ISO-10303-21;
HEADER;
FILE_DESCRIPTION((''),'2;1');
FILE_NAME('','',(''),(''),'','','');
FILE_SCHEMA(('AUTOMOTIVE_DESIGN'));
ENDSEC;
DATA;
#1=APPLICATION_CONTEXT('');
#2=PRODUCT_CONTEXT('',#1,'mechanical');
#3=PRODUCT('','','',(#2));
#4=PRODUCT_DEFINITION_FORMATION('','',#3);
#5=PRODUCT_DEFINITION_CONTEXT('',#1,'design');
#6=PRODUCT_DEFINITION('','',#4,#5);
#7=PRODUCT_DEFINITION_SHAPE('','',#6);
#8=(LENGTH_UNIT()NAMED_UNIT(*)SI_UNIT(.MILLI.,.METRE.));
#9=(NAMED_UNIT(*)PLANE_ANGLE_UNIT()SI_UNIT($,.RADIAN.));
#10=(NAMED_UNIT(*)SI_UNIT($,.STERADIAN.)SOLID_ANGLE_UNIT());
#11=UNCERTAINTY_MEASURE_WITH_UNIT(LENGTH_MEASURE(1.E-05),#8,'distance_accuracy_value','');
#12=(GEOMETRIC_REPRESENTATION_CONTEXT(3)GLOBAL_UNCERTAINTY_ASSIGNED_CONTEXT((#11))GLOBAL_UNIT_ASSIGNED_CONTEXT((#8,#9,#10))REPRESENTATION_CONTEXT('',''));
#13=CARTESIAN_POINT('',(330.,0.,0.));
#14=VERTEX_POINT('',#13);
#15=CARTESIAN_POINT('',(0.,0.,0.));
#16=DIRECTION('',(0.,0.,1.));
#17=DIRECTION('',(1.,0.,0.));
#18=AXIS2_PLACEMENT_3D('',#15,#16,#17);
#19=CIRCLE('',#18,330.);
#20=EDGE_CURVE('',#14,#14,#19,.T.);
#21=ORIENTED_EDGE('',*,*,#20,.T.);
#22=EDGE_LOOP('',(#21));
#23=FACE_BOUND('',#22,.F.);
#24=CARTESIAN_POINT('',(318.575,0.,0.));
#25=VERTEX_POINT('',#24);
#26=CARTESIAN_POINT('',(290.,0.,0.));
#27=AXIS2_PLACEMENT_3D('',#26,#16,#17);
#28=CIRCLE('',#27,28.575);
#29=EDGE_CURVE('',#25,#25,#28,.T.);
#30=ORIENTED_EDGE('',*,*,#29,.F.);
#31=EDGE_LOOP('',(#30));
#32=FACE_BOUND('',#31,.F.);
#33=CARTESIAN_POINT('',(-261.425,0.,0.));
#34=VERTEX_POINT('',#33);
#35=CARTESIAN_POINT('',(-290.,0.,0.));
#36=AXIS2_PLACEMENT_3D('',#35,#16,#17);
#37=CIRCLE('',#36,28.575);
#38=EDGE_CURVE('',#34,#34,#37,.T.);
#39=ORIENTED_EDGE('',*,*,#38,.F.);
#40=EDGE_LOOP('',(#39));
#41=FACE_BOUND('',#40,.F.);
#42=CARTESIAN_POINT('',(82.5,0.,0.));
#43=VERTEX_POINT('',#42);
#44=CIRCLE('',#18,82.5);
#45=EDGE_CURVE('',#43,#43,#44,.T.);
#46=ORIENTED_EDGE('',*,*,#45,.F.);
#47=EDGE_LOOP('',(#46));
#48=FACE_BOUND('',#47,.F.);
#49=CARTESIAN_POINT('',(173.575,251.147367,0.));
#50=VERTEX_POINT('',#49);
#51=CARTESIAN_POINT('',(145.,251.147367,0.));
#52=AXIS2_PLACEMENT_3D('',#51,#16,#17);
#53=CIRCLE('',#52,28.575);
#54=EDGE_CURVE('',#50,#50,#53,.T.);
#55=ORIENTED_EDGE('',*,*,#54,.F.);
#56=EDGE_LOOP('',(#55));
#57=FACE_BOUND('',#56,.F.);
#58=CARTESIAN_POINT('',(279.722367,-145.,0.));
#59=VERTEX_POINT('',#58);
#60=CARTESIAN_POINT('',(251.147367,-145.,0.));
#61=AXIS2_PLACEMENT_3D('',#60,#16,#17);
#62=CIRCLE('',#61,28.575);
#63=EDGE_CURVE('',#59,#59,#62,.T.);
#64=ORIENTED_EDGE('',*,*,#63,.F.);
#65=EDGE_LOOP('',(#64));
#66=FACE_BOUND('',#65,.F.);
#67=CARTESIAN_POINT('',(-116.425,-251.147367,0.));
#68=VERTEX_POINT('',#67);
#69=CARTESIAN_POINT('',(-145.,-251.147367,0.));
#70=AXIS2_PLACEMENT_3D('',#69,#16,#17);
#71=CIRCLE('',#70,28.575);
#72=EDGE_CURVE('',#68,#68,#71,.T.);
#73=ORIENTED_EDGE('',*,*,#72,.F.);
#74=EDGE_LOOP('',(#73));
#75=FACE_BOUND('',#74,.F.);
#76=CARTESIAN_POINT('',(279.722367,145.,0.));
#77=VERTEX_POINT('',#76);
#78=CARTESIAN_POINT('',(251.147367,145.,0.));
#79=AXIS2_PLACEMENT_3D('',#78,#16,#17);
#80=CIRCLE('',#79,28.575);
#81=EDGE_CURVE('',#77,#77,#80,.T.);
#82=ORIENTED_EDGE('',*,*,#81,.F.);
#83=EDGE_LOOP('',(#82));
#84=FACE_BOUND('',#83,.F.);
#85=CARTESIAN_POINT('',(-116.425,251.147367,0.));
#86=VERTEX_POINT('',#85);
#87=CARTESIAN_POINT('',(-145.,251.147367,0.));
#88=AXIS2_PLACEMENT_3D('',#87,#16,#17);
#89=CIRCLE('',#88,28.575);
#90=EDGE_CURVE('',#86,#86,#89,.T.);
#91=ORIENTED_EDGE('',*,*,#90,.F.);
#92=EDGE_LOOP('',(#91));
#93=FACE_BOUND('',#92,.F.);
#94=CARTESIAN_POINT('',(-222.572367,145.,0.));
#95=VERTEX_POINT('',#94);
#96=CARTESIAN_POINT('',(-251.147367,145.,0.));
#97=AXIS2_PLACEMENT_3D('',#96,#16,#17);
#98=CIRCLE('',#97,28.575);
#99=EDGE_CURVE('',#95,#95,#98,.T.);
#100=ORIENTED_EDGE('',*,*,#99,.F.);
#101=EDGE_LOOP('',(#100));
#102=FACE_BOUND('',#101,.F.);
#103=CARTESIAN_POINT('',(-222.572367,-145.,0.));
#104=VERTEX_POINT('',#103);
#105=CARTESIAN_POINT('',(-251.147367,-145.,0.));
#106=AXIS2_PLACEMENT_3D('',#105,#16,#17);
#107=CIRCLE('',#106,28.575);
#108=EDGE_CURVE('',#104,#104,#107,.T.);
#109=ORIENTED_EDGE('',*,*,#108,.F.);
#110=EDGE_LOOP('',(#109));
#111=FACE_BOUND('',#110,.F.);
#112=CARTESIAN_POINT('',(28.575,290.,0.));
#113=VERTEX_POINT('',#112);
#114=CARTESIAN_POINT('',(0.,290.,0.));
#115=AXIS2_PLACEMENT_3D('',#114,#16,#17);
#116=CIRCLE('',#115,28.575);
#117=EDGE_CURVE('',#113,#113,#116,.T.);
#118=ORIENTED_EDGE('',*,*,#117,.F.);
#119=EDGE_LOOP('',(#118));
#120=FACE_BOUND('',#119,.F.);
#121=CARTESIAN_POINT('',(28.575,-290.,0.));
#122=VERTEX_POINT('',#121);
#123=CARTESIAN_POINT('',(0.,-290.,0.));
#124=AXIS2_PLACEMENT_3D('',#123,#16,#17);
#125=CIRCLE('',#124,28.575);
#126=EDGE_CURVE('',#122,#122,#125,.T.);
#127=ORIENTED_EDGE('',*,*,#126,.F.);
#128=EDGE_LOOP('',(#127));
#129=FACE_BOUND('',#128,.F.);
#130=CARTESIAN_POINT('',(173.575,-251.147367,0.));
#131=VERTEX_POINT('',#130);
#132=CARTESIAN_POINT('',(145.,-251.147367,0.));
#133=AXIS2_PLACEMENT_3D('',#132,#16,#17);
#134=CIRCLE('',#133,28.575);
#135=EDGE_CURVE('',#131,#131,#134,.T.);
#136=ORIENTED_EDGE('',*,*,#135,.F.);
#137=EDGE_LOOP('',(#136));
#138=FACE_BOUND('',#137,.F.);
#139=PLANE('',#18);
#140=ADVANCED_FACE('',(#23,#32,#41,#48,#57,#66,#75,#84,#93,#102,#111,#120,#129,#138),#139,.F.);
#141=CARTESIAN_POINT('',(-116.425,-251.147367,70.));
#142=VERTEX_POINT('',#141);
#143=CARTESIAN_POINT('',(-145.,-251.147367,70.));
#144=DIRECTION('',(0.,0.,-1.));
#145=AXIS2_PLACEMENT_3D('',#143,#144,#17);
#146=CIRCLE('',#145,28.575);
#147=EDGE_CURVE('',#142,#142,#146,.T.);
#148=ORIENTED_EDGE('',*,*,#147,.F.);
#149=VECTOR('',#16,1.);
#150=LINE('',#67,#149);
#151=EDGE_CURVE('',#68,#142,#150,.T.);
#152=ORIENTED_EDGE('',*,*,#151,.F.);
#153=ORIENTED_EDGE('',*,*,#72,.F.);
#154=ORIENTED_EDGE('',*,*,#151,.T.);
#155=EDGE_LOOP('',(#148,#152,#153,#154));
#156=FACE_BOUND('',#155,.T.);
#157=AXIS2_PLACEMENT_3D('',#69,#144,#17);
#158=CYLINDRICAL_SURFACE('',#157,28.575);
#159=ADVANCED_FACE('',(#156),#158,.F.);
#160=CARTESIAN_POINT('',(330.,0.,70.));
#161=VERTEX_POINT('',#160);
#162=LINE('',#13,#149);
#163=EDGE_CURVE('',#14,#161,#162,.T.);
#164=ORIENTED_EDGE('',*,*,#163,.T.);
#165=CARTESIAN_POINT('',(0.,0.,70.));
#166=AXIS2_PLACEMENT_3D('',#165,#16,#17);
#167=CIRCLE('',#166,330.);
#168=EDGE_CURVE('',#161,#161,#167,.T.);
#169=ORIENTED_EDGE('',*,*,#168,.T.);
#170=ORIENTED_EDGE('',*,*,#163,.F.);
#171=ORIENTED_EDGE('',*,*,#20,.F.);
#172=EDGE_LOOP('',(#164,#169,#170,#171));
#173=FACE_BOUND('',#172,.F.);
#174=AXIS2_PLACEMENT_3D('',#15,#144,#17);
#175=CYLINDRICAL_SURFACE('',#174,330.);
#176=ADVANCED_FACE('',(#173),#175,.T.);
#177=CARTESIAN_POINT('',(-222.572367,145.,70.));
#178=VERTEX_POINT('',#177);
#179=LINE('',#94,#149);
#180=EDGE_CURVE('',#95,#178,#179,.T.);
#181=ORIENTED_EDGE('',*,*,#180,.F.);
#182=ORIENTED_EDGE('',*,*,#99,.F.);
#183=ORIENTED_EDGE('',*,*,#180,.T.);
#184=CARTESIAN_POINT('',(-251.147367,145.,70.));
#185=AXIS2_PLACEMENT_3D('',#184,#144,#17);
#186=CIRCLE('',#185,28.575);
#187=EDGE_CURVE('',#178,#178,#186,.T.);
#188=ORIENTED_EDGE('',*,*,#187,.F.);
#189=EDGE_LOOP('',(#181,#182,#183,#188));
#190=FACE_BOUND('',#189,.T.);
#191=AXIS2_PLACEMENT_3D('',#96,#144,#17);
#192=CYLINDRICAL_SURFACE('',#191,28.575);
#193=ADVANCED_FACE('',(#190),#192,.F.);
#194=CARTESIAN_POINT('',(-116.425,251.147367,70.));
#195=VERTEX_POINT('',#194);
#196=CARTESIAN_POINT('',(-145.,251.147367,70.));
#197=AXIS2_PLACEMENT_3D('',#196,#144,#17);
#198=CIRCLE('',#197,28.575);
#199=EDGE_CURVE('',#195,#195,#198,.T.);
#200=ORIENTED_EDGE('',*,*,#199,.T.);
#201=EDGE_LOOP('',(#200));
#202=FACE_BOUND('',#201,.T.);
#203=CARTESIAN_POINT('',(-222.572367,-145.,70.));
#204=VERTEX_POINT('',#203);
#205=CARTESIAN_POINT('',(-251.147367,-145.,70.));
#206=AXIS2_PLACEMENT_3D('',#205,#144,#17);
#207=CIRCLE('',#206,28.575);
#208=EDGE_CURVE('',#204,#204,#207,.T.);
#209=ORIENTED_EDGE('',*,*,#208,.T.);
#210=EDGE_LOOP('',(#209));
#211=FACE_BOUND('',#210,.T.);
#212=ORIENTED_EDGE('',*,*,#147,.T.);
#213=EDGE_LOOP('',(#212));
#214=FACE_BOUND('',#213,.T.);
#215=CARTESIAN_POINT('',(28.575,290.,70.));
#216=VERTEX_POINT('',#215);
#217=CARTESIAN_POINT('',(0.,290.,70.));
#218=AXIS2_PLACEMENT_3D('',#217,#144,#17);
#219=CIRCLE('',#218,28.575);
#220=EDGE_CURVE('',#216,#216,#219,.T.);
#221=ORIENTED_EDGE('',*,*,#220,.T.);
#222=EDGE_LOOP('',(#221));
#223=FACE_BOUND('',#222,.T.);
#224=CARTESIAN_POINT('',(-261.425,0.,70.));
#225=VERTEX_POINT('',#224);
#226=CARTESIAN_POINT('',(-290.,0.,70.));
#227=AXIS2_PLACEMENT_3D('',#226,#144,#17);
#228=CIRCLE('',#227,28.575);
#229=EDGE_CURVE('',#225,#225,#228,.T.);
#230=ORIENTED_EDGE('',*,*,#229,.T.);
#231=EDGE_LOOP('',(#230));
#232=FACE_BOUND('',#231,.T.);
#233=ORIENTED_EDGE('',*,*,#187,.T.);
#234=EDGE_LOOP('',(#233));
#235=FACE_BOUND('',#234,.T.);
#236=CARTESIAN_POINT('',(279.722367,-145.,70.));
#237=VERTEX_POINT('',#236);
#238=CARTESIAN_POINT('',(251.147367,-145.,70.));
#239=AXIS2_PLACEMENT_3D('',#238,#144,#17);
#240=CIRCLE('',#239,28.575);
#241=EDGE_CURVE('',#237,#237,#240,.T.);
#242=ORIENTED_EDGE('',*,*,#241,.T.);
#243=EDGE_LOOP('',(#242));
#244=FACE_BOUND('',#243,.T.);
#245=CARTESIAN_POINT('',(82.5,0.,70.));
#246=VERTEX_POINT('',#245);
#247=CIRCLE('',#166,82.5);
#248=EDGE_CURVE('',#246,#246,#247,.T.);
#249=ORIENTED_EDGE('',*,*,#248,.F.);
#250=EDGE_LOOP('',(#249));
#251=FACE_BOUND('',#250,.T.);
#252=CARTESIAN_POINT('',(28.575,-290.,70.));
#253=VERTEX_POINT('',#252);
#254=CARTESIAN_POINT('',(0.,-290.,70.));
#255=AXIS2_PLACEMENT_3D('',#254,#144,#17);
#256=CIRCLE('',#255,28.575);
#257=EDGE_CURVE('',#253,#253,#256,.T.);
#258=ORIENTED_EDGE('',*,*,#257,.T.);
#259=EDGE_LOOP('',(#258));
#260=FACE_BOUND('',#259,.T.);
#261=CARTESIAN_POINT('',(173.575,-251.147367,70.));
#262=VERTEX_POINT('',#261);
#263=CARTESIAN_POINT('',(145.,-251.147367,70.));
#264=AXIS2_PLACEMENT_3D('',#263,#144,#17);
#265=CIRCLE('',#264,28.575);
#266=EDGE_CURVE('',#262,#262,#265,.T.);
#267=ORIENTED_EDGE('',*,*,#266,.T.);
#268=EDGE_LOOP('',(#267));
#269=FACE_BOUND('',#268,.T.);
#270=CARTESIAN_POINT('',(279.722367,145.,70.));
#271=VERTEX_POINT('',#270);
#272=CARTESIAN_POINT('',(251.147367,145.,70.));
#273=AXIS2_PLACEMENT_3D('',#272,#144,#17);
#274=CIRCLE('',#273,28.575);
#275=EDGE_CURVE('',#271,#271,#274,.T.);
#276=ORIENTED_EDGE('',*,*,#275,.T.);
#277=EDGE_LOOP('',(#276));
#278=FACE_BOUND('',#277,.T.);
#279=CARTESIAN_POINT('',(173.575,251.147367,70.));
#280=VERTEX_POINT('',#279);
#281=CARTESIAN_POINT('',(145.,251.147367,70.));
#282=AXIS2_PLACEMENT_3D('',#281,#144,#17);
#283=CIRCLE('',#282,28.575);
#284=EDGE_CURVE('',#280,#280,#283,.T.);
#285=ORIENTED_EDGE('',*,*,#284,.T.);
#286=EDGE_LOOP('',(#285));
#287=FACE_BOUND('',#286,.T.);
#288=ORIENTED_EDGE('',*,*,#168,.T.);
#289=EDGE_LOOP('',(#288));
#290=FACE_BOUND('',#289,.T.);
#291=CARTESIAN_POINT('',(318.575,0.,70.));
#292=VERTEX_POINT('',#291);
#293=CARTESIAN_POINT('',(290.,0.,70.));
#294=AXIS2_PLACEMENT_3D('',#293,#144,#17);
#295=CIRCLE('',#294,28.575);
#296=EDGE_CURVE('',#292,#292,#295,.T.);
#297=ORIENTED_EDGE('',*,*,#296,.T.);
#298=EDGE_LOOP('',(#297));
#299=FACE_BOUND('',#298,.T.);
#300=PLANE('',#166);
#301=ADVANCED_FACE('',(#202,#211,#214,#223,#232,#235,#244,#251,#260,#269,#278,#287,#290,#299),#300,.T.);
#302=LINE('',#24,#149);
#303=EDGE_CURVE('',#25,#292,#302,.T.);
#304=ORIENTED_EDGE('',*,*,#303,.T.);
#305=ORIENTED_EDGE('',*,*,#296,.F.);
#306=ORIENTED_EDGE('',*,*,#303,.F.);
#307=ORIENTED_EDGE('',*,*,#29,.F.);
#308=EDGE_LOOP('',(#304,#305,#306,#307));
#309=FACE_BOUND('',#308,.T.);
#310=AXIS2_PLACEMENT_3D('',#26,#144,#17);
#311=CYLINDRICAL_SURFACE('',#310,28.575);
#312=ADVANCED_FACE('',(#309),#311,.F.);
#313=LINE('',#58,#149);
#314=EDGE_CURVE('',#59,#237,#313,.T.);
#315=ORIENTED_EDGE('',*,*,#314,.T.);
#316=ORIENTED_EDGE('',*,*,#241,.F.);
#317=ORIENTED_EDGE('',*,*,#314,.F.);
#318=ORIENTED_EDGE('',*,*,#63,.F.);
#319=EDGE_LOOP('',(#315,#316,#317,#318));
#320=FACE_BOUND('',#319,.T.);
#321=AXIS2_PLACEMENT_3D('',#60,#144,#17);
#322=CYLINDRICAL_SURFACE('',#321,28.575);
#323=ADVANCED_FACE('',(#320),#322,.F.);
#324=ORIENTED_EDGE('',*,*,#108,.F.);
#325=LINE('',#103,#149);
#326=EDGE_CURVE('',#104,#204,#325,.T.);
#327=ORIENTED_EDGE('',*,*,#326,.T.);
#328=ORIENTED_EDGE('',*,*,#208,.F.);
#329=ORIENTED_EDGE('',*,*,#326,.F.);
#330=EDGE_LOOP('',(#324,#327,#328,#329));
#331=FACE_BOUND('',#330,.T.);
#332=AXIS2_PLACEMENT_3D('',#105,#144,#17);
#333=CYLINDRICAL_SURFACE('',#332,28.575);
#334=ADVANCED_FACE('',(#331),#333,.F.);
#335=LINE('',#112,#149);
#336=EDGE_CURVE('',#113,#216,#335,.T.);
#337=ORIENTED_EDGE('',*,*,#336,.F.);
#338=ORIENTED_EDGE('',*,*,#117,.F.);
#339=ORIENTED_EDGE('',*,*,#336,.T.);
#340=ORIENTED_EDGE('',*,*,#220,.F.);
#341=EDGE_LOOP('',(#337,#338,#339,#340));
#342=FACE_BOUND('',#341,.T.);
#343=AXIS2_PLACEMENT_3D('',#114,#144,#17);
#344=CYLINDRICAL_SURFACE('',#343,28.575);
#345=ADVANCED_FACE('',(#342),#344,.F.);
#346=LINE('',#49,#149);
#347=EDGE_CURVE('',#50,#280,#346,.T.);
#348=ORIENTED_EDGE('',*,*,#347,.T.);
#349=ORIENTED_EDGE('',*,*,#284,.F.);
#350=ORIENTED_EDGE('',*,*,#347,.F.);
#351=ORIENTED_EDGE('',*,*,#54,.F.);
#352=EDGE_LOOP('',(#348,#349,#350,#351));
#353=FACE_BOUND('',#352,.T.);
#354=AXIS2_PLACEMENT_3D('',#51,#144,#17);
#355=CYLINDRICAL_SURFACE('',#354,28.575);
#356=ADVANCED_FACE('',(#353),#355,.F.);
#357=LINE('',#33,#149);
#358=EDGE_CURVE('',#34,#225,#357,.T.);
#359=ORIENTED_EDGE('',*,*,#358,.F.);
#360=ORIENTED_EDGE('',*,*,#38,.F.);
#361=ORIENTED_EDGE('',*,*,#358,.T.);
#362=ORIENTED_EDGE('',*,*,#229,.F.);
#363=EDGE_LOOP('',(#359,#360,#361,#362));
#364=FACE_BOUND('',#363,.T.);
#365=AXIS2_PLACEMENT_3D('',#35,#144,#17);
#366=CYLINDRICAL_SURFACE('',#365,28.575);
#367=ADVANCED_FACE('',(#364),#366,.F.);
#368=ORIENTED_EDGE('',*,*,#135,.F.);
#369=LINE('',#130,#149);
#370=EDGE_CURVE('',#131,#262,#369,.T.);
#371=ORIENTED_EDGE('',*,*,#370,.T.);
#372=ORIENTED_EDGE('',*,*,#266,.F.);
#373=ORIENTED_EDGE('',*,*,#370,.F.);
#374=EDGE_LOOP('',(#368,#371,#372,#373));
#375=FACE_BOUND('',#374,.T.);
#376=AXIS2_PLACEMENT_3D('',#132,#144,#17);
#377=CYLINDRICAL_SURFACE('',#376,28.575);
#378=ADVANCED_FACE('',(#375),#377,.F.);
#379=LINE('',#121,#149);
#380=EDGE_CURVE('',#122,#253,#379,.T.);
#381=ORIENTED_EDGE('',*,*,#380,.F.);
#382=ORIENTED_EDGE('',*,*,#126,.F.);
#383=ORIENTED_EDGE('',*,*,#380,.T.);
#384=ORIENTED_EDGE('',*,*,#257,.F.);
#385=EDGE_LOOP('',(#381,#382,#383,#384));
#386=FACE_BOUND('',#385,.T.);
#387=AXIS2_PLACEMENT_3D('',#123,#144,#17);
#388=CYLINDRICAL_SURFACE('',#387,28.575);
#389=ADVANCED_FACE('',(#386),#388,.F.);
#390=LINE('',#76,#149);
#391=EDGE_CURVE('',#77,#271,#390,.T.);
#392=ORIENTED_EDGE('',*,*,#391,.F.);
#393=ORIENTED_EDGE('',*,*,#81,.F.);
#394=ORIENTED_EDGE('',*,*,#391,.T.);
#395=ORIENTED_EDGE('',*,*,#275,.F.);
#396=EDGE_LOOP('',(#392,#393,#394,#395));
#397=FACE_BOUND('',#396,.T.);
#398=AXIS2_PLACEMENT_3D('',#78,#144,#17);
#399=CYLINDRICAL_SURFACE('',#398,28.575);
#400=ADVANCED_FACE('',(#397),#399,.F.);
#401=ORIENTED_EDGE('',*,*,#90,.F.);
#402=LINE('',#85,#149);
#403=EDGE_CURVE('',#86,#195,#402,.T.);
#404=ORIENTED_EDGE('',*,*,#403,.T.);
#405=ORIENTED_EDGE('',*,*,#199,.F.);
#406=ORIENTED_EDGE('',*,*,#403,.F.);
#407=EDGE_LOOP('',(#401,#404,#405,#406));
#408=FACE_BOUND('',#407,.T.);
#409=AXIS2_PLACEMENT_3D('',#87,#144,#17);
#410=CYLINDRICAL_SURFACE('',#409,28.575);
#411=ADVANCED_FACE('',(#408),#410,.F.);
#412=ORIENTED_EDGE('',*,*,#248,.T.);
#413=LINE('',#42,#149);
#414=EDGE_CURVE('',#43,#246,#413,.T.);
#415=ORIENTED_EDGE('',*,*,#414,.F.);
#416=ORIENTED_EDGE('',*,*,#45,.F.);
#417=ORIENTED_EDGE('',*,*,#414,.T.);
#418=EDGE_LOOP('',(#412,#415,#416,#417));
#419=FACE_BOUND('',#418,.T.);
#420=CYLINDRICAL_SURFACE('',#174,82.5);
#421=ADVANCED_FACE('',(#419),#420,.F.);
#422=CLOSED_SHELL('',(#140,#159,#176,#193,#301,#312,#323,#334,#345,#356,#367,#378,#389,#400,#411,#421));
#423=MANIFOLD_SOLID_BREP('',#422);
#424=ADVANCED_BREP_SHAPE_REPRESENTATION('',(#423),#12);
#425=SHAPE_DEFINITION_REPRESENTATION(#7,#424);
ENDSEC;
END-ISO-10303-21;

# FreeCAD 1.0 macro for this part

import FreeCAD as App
import Part
import Sketcher

V = App.Vector
Q = App.Units.Quantity

doc = App.newDocument("Part")
params = doc.addObject("Spreadsheet::Sheet", "Params")
for row, (alias, value) in enumerate([
    ("sketch1_diameter", "660 mm"),
    ("sketch1_diameter2", "165 mm"),
    ("pad1_length", "70 mm"),
    ("sketch2_diameter", "57.15 mm"),
    ("pocket1_length", "131 mm"),
], start=1):
    params.set(f"A{row}", alias)
    params.set(f"B{row}", "=" + value)
    params.setAlias(f"B{row}", alias)

body = doc.addObject("PartDesign::Body", "Body")

# Sketch on XY plane
sketch1 = body.newObject("Sketcher::SketchObject", "Sketch")
sketch1.AttachmentSupport = (doc.getObject("XY_Plane"), [""])
sketch1.MapMode = "FlatFace"
sketch1.addGeometry([
    Part.Circle(V(0, 0, 0), V(0, 0, 1), 330),
    Part.Circle(V(0, 0, 0), V(0, 0, 1), 82),
], False)
sketch1.addConstraint([
    Sketcher.Constraint("Coincident", 0, 3, -1, 1),
    Sketcher.Constraint("Coincident", 1, 3, -1, 1),
    Sketcher.Constraint("Diameter", 0, Q("660 mm")),
    Sketcher.Constraint("Diameter", 1, Q("165 mm")),
])
sketch1.setExpression("Constraints[2]", "Params.sketch1_diameter")
sketch1.setExpression("Constraints[3]", "Params.sketch1_diameter2")
pad1 = body.newObject("PartDesign::Pad", "Pad")
pad1.Profile = sketch1
pad1.setExpression("Length", "Params.pad1_length")

# Sketch on XY plane
sketch2 = body.newObject("Sketcher::SketchObject", "Sketch001")
sketch2.AttachmentSupport = (doc.getObject("XY_Plane"), [""])
sketch2.MapMode = "FlatFace"
sketch2.addGeometry([
    Part.Circle(V(0, 290, 0), V(0, 0, 1), 29),  # 0
    Part.Circle(V(145, 251, 0), V(0, 0, 1), 29),  # 1
    Part.Circle(V(251, 145, 0), V(0, 0, 1), 29),  # 2
    Part.Circle(V(290, 0, 0), V(0, 0, 1), 29),  # 3
    Part.Circle(V(251, -145, 0), V(0, 0, 1), 29),  # 4
    Part.Circle(V(145, -251, 0), V(0, 0, 1), 29),  # 5
    Part.Circle(V(0, -290, 0), V(0, 0, 1), 29),  # 6
    Part.Circle(V(-145, -251, 0), V(0, 0, 1), 29),  # 7
    Part.Circle(V(-251, -145, 0), V(0, 0, 1), 29),  # 8
    Part.Circle(V(-290, 0, 0), V(0, 0, 1), 29),  # 9
    Part.Circle(V(-251, 145, 0), V(0, 0, 1), 29),  # 10
    Part.Circle(V(-145, 251, 0), V(0, 0, 1), 29),  # 11
], False)
sketch2.addConstraint([
    Sketcher.Constraint("Equal", 0, 1),
    Sketcher.Constraint("Equal", 1, 2),
    Sketcher.Constraint("Equal", 2, 3),
    Sketcher.Constraint("Equal", 3, 4),
    Sketcher.Constraint("Equal", 4, 5),
    Sketcher.Constraint("Equal", 5, 6),
    Sketcher.Constraint("Equal", 6, 7),
    Sketcher.Constraint("Equal", 7, 8),
    Sketcher.Constraint("Equal", 8, 9),
    Sketcher.Constraint("Equal", 9, 10),
    Sketcher.Constraint("Equal", 10, 11),
    Sketcher.Constraint("Symmetric", 0, 3, 6, 3, -1, 1),
    Sketcher.Constraint("Symmetric", 1, 3, 7, 3, -1, 1),
    Sketcher.Constraint("Symmetric", 2, 3, 8, 3, -1, 1),
    Sketcher.Constraint("Symmetric", 3, 3, 9, 3, -1, 1),
    Sketcher.Constraint("Symmetric", 4, 3, 10, 3, -1, 1),
    Sketcher.Constraint("Symmetric", 5, 3, 11, 3, -1, 1),
    Sketcher.Constraint("Symmetric", 5, 3, 7, 3, -2),
    Sketcher.Constraint("Symmetric", 4, 3, 8, 3, -2),
    Sketcher.Constraint("PointOnObject", 0, 3, -2),
    Sketcher.Constraint("PointOnObject", 3, 3, -1),
    Sketcher.Constraint("Diameter", 0, Q("57.15 mm")),
    Sketcher.Constraint("DistanceY", -1, 1, 0, 3, Q("290 mm")),
    Sketcher.Constraint("DistanceX", -1, 1, 1, 3, Q("145 mm")),
    Sketcher.Constraint("DistanceY", -1, 1, 2, 3, Q("145 mm")),
    Sketcher.Constraint("DistanceX", -1, 1, 3, 3, Q("290 mm")),
    Sketcher.Constraint("DistanceY", -1, 1, 1, 3, Q("251.147367 mm")),
    Sketcher.Constraint("DistanceX", -1, 1, 2, 3, Q("251.147367 mm")),
])
sketch2.setExpression("Constraints[21]", "Params.sketch2_diameter")
pocket1 = body.newObject("PartDesign::Pocket", "Pocket")
pocket1.Profile = sketch2
pocket1.setExpression("Length", "Params.pocket1_length")
pocket1.Reversed = True

doc.recompute()
